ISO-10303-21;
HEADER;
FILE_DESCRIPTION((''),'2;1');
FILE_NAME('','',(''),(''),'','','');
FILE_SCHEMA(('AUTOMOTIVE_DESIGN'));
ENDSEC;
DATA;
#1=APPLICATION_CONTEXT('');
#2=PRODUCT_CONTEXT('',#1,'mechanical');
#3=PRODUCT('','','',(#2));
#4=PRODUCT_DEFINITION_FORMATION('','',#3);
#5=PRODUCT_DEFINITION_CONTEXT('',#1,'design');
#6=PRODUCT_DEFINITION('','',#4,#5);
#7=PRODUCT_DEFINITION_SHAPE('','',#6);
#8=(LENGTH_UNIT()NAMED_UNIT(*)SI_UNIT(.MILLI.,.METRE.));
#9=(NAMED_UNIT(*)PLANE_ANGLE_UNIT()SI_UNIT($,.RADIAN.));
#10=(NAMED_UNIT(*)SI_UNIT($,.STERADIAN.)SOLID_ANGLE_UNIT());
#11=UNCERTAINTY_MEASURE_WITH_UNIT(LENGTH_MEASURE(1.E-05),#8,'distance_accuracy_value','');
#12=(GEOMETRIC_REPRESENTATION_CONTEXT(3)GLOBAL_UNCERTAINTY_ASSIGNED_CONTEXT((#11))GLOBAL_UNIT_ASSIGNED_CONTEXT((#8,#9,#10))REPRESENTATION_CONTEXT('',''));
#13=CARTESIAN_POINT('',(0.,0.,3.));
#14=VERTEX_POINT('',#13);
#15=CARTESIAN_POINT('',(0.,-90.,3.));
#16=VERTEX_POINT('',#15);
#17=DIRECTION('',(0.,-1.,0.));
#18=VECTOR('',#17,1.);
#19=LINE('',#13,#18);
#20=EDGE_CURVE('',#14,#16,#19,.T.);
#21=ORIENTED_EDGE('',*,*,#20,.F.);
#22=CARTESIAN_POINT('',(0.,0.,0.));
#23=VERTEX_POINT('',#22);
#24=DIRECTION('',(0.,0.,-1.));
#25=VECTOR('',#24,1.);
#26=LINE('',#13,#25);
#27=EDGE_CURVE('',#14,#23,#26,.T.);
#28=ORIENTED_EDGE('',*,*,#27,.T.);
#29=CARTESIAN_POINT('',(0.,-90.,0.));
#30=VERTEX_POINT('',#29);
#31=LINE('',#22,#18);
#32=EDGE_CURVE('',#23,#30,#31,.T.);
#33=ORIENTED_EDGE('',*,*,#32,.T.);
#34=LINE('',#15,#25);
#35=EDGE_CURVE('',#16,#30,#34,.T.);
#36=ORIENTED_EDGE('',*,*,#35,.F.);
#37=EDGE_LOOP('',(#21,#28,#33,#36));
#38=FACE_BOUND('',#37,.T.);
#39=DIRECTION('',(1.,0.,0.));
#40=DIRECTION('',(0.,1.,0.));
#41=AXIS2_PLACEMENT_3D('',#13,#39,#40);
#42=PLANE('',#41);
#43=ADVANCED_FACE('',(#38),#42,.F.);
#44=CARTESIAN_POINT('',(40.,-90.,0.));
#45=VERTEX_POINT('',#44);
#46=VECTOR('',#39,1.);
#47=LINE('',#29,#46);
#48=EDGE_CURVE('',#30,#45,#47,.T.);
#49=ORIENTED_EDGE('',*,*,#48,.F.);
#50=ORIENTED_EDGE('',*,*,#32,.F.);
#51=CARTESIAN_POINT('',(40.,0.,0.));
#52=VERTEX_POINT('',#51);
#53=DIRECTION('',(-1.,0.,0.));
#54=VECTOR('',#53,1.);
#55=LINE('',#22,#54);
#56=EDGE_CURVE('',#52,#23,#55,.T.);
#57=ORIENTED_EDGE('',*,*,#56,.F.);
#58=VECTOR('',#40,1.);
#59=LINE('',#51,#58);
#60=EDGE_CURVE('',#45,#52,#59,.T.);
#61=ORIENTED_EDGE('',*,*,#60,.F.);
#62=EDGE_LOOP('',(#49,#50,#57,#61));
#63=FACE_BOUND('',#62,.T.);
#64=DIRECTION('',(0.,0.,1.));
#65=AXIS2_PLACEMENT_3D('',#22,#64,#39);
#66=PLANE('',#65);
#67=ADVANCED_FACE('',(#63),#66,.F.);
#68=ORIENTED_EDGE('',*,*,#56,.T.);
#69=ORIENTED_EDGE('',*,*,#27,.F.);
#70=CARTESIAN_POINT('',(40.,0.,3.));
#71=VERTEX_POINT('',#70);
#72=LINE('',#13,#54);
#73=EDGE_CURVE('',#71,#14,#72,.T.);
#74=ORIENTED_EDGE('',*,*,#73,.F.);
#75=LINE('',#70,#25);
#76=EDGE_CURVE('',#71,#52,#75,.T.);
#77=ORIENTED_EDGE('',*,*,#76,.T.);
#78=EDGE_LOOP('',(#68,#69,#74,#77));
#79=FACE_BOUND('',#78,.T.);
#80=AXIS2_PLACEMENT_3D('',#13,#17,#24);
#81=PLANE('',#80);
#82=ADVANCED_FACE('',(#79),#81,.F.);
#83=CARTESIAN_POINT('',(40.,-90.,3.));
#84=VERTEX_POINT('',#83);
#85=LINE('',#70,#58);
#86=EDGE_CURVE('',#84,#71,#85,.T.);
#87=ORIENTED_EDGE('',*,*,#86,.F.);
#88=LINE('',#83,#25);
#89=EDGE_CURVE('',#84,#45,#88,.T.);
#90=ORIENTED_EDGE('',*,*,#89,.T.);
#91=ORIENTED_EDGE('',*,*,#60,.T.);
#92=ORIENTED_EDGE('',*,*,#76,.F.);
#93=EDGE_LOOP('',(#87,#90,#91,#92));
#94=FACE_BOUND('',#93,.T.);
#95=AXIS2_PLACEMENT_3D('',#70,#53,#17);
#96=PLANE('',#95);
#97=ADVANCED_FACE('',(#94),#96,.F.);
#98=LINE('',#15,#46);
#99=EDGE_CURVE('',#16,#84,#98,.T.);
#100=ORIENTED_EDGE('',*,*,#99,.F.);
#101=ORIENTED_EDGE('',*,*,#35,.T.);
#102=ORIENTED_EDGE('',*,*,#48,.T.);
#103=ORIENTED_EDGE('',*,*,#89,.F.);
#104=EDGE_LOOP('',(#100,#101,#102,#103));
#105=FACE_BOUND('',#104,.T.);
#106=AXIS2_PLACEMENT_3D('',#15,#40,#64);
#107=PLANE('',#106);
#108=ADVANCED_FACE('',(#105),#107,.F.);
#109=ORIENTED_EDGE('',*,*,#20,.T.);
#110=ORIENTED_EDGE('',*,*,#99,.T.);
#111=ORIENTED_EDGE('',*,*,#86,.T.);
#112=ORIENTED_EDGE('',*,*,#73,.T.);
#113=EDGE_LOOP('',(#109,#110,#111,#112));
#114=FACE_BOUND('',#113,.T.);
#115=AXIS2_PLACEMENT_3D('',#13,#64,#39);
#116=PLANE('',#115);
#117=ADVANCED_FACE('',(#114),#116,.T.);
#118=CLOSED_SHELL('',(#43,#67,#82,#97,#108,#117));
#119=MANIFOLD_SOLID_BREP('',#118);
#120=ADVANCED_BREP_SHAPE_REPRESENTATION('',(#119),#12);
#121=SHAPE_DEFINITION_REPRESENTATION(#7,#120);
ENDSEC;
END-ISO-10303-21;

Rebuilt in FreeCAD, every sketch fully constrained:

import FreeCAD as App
import Part
import Sketcher

V = App.Vector
Q = App.Units.Quantity

doc = App.newDocument("Part")
params = doc.addObject("Spreadsheet::Sheet", "Params")
for row, (alias, value) in enumerate([
    ("sketch1_width", "40 mm"),
    ("sketch1_height", "90 mm"),
    ("pad1_length", "3 mm"),
], start=1):
    params.set(f"A{row}", alias)
    params.set(f"B{row}", "=" + value)
    params.setAlias(f"B{row}", alias)

body = doc.addObject("PartDesign::Body", "Body")

sketch1 = doc.addObject("Sketcher::SketchObject", "Sketch")
body.addObject(sketch1)
sketch1.AttachmentSupport = (doc.XY_Plane, [""])
sketch1.MapMode = "FlatFace"
sketch1.addGeometry([
    Part.LineSegment(V(0, 0, 0), V(0, -90, 0)),
    Part.LineSegment(V(0, -90, 0), V(40, -90, 0)),
    Part.LineSegment(V(40, -90, 0), V(40, 0, 0)),
    Part.LineSegment(V(40, 0, 0), V(0, 0, 0)),
], False)
sketch1.addConstraint([
    Sketcher.Constraint("Coincident", 0, 2, 1, 1),
    Sketcher.Constraint("Coincident", 1, 2, 2, 1),
    Sketcher.Constraint("Coincident", 2, 2, 3, 1),
    Sketcher.Constraint("Coincident", 3, 2, 0, 1),
    Sketcher.Constraint("Vertical", 0),
    Sketcher.Constraint("Horizontal", 1),
    Sketcher.Constraint("Vertical", 2),
    Sketcher.Constraint("Horizontal", 3),
    Sketcher.Constraint("Coincident", 3, 2, -1, 1),
    Sketcher.Constraint("DistanceX", 1, 1, 1, 2, Q("40 mm")),
    Sketcher.Constraint("DistanceY", 0, 2, 0, 1, Q("90 mm")),
])
sketch1.setExpression("Constraints[9]", "Params.sketch1_width")
sketch1.setExpression("Constraints[10]", "Params.sketch1_height")
pad1 = doc.addObject("PartDesign::Pad", "Pad")
body.addObject(pad1)
pad1.Profile = sketch1
pad1.setExpression("Length", "Params.pad1_length")

doc.recompute()
